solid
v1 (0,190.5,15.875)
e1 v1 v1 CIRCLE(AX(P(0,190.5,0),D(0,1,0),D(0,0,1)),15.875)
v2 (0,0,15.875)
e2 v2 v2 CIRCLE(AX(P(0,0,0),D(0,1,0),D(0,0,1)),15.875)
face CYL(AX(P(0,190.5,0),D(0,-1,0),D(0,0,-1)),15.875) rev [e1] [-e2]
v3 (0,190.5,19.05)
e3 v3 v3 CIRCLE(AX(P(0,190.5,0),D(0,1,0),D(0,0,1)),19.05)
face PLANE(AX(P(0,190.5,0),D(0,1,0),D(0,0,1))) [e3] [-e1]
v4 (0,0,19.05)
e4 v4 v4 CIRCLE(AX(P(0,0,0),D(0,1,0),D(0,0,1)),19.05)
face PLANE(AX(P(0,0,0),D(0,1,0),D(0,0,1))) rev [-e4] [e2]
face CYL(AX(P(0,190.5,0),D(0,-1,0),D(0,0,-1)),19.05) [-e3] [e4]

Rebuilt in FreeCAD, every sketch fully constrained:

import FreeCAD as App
import Part
import Sketcher

V = App.Vector
Q = App.Units.Quantity

doc = App.newDocument("Part")
params = doc.addObject("Spreadsheet::Sheet", "Params")
for row, (alias, value) in enumerate([
    ("sketch1_diameter", "1.5 in"),
    ("sketch1_diameter2", "1.25 in"),
    ("pad1_length", "7.5 in"),
], start=1):
    params.set(f"A{row}", alias)
    params.set(f"B{row}", "=" + value)
    params.setAlias(f"B{row}", alias)

body = doc.addObject("PartDesign::Body", "Body")

sketch1 = body.newObject("Sketcher::SketchObject", "Sketch")
sketch1.AttachmentSupport = (doc.getObject("XZ_Plane"), [""])
sketch1.MapMode = "FlatFace"
sketch1.addGeometry([
    Part.Circle(V(0, 0, 0), V(0, 0, 1), 19),
    Part.Circle(V(0, 0, 0), V(0, 0, 1), 16),
], False)
sketch1.addConstraint([
    Sketcher.Constraint("Coincident", 0, 3, -1, 1),
    Sketcher.Constraint("Coincident", 1, 3, -1, 1),
    Sketcher.Constraint("Diameter", 0, Q("1.5 in")),
    Sketcher.Constraint("Diameter", 1, Q("1.25 in")),
])
sketch1.setExpression("Constraints[2]", "Params.sketch1_diameter")
sketch1.setExpression("Constraints[3]", "Params.sketch1_diameter2")
pad1 = body.newObject("PartDesign::Pad", "Pad")
pad1.Profile = sketch1
pad1.setExpression("Length", "Params.pad1_length")
pad1.Reversed = True

doc.recompute()
